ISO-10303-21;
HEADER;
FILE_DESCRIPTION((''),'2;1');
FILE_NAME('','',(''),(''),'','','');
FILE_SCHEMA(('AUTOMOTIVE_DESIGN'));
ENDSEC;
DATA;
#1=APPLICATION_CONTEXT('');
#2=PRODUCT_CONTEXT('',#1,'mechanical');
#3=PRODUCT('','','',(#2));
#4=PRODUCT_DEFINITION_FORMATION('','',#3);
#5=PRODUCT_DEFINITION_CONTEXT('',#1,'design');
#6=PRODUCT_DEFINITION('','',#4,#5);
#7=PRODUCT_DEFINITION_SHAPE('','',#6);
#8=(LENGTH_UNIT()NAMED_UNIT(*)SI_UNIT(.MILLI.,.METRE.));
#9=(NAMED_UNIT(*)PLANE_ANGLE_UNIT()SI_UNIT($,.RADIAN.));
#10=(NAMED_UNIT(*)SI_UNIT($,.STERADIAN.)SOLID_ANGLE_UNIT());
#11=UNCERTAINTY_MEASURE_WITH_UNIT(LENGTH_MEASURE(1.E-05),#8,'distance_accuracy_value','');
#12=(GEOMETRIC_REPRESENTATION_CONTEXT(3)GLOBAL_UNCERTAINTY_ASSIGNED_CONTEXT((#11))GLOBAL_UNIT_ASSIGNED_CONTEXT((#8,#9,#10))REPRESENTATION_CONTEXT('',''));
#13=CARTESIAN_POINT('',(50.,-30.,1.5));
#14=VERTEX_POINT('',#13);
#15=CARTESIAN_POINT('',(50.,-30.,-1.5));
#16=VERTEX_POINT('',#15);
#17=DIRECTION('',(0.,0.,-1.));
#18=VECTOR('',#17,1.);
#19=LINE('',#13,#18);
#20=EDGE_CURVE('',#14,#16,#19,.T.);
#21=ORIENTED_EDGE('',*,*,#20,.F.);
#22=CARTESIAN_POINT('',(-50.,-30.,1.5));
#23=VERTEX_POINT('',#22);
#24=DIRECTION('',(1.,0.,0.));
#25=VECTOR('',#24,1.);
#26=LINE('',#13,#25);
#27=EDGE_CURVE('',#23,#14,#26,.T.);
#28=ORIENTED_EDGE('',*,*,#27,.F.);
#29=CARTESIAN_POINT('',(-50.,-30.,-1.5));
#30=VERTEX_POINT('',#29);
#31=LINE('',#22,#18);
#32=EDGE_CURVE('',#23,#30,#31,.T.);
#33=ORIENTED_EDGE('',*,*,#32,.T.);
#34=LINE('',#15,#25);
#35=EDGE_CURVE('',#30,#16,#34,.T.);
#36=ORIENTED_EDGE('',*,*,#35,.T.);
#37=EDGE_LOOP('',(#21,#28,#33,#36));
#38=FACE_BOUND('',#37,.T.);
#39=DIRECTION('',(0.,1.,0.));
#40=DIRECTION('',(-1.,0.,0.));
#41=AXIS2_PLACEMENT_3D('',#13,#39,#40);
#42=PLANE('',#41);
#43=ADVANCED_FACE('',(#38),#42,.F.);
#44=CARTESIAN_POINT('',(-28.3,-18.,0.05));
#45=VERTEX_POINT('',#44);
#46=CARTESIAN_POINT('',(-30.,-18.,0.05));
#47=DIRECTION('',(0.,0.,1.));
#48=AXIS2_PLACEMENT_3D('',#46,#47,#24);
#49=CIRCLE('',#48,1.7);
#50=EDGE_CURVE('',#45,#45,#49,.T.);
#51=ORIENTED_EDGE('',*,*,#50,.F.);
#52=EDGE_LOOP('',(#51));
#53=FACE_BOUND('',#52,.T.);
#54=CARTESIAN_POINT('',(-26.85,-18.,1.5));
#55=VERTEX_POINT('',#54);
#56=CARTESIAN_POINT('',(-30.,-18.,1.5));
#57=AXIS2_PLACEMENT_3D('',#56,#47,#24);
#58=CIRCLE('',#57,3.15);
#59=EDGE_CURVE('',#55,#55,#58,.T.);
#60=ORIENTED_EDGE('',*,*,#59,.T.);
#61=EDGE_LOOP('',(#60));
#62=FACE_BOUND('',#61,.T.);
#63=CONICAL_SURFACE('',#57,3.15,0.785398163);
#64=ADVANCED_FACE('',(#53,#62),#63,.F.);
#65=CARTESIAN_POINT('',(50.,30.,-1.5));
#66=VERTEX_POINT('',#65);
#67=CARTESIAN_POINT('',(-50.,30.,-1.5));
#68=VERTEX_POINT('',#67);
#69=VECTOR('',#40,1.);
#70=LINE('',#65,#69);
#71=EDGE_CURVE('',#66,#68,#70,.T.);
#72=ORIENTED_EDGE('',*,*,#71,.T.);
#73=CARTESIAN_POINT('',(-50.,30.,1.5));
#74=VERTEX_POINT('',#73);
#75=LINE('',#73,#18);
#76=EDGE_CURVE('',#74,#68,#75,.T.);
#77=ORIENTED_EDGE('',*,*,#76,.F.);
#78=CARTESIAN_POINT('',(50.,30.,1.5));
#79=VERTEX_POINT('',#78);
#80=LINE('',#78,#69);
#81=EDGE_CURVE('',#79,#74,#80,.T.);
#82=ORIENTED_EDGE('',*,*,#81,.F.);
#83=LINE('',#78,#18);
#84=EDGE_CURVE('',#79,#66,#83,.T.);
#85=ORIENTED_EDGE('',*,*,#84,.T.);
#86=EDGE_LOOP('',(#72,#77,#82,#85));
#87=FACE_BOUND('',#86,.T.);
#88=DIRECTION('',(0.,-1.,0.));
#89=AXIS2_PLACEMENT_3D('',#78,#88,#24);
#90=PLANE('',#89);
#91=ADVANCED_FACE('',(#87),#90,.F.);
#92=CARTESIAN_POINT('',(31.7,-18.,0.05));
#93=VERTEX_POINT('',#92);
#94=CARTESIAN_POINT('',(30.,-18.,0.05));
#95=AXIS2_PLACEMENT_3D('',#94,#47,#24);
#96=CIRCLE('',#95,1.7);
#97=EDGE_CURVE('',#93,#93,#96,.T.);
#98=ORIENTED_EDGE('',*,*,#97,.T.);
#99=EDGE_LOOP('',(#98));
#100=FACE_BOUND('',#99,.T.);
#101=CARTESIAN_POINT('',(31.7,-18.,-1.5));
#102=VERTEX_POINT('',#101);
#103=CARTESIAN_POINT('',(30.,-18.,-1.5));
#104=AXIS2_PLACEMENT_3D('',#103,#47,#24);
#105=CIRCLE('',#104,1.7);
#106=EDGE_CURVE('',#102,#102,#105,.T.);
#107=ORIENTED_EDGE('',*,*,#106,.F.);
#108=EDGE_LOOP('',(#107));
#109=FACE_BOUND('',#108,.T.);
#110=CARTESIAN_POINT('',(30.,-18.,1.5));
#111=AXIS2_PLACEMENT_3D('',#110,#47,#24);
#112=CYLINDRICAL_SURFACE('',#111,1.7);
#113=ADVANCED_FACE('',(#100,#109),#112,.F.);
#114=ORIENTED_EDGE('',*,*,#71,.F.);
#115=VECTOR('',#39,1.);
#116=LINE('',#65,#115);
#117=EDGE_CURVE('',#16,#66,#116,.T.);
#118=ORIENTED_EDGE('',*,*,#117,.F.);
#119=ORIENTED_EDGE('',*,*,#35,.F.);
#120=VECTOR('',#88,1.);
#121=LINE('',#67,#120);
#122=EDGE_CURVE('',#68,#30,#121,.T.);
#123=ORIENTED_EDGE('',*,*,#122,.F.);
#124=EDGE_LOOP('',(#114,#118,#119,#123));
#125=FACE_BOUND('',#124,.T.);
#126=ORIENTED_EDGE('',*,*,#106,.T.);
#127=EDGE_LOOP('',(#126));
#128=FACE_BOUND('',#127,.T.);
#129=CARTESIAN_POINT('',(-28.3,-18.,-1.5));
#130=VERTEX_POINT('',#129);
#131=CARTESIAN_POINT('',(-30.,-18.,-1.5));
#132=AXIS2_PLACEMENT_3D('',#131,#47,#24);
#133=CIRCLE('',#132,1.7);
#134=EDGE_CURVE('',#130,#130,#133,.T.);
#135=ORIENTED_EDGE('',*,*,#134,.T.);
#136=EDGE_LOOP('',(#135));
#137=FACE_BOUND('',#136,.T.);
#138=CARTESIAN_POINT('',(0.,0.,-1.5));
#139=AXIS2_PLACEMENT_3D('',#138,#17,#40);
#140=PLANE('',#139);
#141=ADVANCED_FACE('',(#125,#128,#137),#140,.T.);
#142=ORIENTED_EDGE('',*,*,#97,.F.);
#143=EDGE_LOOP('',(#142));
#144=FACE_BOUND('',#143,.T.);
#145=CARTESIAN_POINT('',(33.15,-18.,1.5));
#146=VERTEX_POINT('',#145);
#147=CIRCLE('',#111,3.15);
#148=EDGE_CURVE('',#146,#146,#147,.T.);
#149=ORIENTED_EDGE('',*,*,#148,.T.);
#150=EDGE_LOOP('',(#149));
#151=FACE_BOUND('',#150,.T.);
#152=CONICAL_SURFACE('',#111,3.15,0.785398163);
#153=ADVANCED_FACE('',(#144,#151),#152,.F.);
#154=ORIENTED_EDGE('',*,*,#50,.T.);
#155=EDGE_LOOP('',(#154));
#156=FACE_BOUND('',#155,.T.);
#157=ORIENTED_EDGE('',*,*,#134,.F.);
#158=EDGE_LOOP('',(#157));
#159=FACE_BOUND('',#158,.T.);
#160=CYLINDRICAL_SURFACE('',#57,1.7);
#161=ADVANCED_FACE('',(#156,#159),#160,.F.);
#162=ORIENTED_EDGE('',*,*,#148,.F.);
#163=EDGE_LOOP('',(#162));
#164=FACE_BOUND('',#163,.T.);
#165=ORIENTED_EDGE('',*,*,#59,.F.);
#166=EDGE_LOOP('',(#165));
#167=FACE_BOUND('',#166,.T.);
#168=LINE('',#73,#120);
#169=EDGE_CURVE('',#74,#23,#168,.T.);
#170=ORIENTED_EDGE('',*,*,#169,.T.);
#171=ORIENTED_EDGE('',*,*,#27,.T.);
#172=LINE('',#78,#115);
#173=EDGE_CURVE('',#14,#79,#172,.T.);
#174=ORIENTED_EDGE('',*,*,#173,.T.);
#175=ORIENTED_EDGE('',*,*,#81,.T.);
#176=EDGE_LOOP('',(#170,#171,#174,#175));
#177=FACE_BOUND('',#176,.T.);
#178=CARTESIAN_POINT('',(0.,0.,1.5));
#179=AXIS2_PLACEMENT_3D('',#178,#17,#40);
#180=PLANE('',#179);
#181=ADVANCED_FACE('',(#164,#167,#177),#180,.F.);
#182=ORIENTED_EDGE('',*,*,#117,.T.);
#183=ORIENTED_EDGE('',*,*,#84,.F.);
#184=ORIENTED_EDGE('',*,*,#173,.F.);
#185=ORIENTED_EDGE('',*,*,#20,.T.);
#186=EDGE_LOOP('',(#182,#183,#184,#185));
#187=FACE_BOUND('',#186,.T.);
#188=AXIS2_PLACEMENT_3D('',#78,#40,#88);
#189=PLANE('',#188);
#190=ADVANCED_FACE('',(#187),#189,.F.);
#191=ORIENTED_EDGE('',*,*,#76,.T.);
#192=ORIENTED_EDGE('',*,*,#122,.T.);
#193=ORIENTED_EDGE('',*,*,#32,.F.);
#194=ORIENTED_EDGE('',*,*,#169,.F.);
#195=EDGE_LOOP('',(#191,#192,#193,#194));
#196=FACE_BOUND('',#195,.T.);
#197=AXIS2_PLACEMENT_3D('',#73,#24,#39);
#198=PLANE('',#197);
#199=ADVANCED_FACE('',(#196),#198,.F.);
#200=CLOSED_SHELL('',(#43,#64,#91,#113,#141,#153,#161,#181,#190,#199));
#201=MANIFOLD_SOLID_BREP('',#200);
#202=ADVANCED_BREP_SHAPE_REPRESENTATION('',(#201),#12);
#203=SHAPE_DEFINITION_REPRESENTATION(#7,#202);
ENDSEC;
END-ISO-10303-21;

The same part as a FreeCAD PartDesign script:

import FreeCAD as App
import Part
import Sketcher

V = App.Vector
Q = App.Units.Quantity

doc = App.newDocument("Part")
body = doc.addObject("PartDesign::Body", "Body")

sketch1 = body.newObject("Sketcher::SketchObject", "Sketch")
sketch1.AttachmentSupport = (doc.getObject("XY_Plane"), [""])
sketch1.MapMode = "FlatFace"
sketch1.addGeometry(Part.LineSegment(V(-50, 30, 0), V(-50, -30, 0)), False)
sketch1.addGeometry(Part.LineSegment(V(-50, -30, 0), V(50, -30, 0)), False)
sketch1.addGeometry(Part.LineSegment(V(50, -30, 0), V(50, 30, 0)), False)
sketch1.addGeometry(Part.LineSegment(V(50, 30, 0), V(-50, 30, 0)), False)
sketch1.addConstraint(Sketcher.Constraint("Coincident", 0, 2, 1, 1))
sketch1.addConstraint(Sketcher.Constraint("Coincident", 1, 2, 2, 1))
sketch1.addConstraint(Sketcher.Constraint("Coincident", 2, 2, 3, 1))
sketch1.addConstraint(Sketcher.Constraint("Coincident", 3, 2, 0, 1))
sketch1.addConstraint(Sketcher.Constraint("Vertical", 0))
sketch1.addConstraint(Sketcher.Constraint("Horizontal", 1))
sketch1.addConstraint(Sketcher.Constraint("Vertical", 2))
sketch1.addConstraint(Sketcher.Constraint("Horizontal", 3))
sketch1.addConstraint(Sketcher.Constraint("Symmetric", 0, 2, 2, 2, -1, 1))
sketch1.addConstraint(Sketcher.Constraint("DistanceX", 1, 1, 1, 2, 100.0))
sketch1.addConstraint(Sketcher.Constraint("DistanceY", 0, 2, 0, 1, 60.0))
pad1 = body.newObject("PartDesign::Pad", "Pad")
pad1.Profile = sketch1
pad1.Length = 3
pad1.Midplane = True

sketch2 = body.newObject("Sketcher::SketchObject", "Sketch001")
sketch2.AttachmentSupport = (doc.getObject("YZ_Plane"), [""])
sketch2.MapMode = "FlatFace"
sketch2.AttachmentOffset = App.Placement(V(0, 0, -30), App.Rotation())
sketch2.addGeometry(Part.LineSegment(V(-18, -1.5, 0), V(-18, 1.5, 0)), False)
sketch2.addGeometry(Part.LineSegment(V(-18, 1.5, 0), V(-21.15, 1.5, 0)), False)
sketch2.addGeometry(Part.LineSegment(V(-21.15, 1.5, 0), V(-19.7, 0.05, 0)), False)
sketch2.addGeometry(Part.LineSegment(V(-19.7, 0.05, 0), V(-19.7, -1.5, 0)), False)
sketch2.addGeometry(Part.LineSegment(V(-19.7, -1.5, 0), V(-18, -1.5, 0)), False)
sketch2.addGeometry(Part.LineSegment(V(-18, 1.5, 0), V(-18, -1.5, 0)), True)
sketch2.addConstraint(Sketcher.Constraint("Coincident", 0, 2, 1, 1))
sketch2.addConstraint(Sketcher.Constraint("Coincident", 1, 2, 2, 1))
sketch2.addConstraint(Sketcher.Constraint("Coincident", 2, 2, 3, 1))
sketch2.addConstraint(Sketcher.Constraint("Coincident", 3, 2, 4, 1))
sketch2.addConstraint(Sketcher.Constraint("Coincident", 4, 2, 0, 1))
sketch2.addConstraint(Sketcher.Constraint("Vertical", 0))
sketch2.addConstraint(Sketcher.Constraint("Horizontal", 1))
sketch2.addConstraint(Sketcher.Constraint("Vertical", 3))
sketch2.addConstraint(Sketcher.Constraint("Horizontal", 4))
sketch2.addConstraint(Sketcher.Constraint("Vertical", 5))
sketch2.addConstraint(Sketcher.Constraint("Coincident", 5, 1, 0, 2))
sketch2.addConstraint(Sketcher.Constraint("Horizontal", 3, 2, 5, 2))
sketch2.addConstraint(Sketcher.Constraint("DistanceY", 0, 1, 0, 2, 3.0))
sketch2.addConstraint(Sketcher.Constraint("Angle", 2, Q("-45 deg")))
sketch2.addConstraint(Sketcher.Constraint("DistanceX", 4, 1, 4, 2, 1.7))
sketch2.addConstraint(Sketcher.Constraint("DistanceX", 0, 2, -1, 1, 18.0))
sketch2.addConstraint(Sketcher.Constraint("DistanceX", 1, 2, 1, 1, 3.15))
sketch2.addConstraint(Sketcher.Constraint("DistanceY", -1, 1, 0, 2, 1.5))
groove = body.newObject("PartDesign::Groove", "Groove")
groove.Profile = sketch2
groove.ReferenceAxis = (sketch2, ["Axis0"])
groove.Angle = 360
doc.recompute()

linearpattern = body.newObject("PartDesign::LinearPattern", "LinearPattern")
linearpattern.Originals = [groove]
linearpattern.Direction = (doc.getObject("X_Axis"), [""])
linearpattern.Mode = "offset"
linearpattern.Offset = 60
linearpattern.Occurrences = 2
body.Tip = linearpattern

doc.recompute()
